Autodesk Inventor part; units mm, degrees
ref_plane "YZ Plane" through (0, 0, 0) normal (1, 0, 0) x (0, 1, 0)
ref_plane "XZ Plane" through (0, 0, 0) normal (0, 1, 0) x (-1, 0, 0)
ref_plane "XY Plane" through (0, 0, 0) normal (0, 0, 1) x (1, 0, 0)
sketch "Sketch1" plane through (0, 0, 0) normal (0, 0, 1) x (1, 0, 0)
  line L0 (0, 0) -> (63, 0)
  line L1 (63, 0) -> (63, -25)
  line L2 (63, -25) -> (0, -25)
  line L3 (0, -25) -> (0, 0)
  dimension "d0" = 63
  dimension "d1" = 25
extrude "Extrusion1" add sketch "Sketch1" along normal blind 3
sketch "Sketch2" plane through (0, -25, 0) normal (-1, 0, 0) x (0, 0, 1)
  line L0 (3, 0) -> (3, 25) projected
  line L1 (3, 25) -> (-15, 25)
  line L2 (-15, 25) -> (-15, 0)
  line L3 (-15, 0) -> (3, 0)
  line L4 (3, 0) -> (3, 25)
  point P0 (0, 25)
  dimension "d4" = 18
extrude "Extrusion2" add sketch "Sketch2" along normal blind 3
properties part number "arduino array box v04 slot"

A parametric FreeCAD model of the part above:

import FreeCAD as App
import Part
import Sketcher

V = App.Vector
Q = App.Units.Quantity

doc = App.newDocument("Part")
params = doc.addObject("Spreadsheet::Sheet", "Params")
for row, (alias, value) in enumerate([
    ("sketch1_width", "63 mm"),
    ("sketch1_height", "25 mm"),
    ("pad1_length", "3 mm"),
    ("sketch2_height", "18 mm"),
    ("sketch2_width", "25 mm"),
    ("pad2_length", "3 mm"),
], start=1):
    params.set(f"A{row}", alias)
    params.set(f"B{row}", "=" + value)
    params.setAlias(f"B{row}", alias)

body = doc.addObject("PartDesign::Body", "Body")

# Sketch on XY plane
sketch1 = body.newObject("Sketcher::SketchObject", "Sketch")
sketch1.AttachmentSupport = (doc.getObject("XY_Plane"), [""])
sketch1.MapMode = "FlatFace"
sketch1.addGeometry([
    Part.LineSegment(V(63, 0, 0), V(0, 0, 0)),
    Part.LineSegment(V(0, 0, 0), V(0, -25, 0)),
    Part.LineSegment(V(0, -25, 0), V(63, -25, 0)),
    Part.LineSegment(V(63, -25, 0), V(63, 0, 0)),
], False)
sketch1.addConstraint([
    Sketcher.Constraint("Coincident", 0, 2, 1, 1),
    Sketcher.Constraint("Coincident", 1, 2, 2, 1),
    Sketcher.Constraint("Coincident", 2, 2, 3, 1),
    Sketcher.Constraint("Coincident", 3, 2, 0, 1),
    Sketcher.Constraint("Horizontal", 0),
    Sketcher.Constraint("Vertical", 1),
    Sketcher.Constraint("Horizontal", 2),
    Sketcher.Constraint("Vertical", 3),
    Sketcher.Constraint("Coincident", 0, 2, -1, 1),
    Sketcher.Constraint("DistanceX", 0, 2, 0, 1, Q("63 mm")),
    Sketcher.Constraint("DistanceY", 1, 2, 1, 1, Q("25 mm")),
])
sketch1.setExpression("Constraints[9]", "Params.sketch1_width")
sketch1.setExpression("Constraints[10]", "Params.sketch1_height")
pad1 = body.newObject("PartDesign::Pad", "Pad")
pad1.Profile = sketch1
pad1.setExpression("Length", "Params.pad1_length")

# Sketch on YZ plane
sketch2 = body.newObject("Sketcher::SketchObject", "Sketch001")
sketch2.AttachmentSupport = (doc.getObject("YZ_Plane"), [""])
sketch2.MapMode = "FlatFace"
sketch2.addGeometry([
    Part.LineSegment(V(-25, -15, 0), V(-25, 3, 0)),
    Part.LineSegment(V(-25, 3, 0), V(0, 3, 0)),
    Part.LineSegment(V(0, 3, 0), V(0, -15, 0)),
    Part.LineSegment(V(0, -15, 0), V(-25, -15, 0)),
], False)
sketch2.addConstraint([
    Sketcher.Constraint("Coincident", 0, 2, 1, 1),
    Sketcher.Constraint("Coincident", 1, 2, 2, 1),
    Sketcher.Constraint("Coincident", 2, 2, 3, 1),
    Sketcher.Constraint("Coincident", 3, 2, 0, 1),
    Sketcher.Constraint("Vertical", 0),
    Sketcher.Constraint("Horizontal", 1),
    Sketcher.Constraint("Vertical", 2),
    Sketcher.Constraint("Horizontal", 3),
    Sketcher.Constraint("PointOnObject", 1, 2, -2),
    Sketcher.Constraint("DistanceY", 0, 1, 0, 2, Q("18 mm")),
    Sketcher.Constraint("DistanceX", 1, 1, 1, 2, Q("25 mm")),
    Sketcher.Constraint("DistanceY", -1, 1, 0, 2, Q("3 mm")),
])
sketch2.setExpression("Constraints[9]", "Params.sketch2_height")
sketch2.setExpression("Constraints[10]", "Params.sketch2_width")
pad2 = body.newObject("PartDesign::Pad", "Pad001")
pad2.Profile = sketch2
pad2.setExpression("Length", "Params.pad2_length")
pad2.Reversed = True

doc.recompute()
